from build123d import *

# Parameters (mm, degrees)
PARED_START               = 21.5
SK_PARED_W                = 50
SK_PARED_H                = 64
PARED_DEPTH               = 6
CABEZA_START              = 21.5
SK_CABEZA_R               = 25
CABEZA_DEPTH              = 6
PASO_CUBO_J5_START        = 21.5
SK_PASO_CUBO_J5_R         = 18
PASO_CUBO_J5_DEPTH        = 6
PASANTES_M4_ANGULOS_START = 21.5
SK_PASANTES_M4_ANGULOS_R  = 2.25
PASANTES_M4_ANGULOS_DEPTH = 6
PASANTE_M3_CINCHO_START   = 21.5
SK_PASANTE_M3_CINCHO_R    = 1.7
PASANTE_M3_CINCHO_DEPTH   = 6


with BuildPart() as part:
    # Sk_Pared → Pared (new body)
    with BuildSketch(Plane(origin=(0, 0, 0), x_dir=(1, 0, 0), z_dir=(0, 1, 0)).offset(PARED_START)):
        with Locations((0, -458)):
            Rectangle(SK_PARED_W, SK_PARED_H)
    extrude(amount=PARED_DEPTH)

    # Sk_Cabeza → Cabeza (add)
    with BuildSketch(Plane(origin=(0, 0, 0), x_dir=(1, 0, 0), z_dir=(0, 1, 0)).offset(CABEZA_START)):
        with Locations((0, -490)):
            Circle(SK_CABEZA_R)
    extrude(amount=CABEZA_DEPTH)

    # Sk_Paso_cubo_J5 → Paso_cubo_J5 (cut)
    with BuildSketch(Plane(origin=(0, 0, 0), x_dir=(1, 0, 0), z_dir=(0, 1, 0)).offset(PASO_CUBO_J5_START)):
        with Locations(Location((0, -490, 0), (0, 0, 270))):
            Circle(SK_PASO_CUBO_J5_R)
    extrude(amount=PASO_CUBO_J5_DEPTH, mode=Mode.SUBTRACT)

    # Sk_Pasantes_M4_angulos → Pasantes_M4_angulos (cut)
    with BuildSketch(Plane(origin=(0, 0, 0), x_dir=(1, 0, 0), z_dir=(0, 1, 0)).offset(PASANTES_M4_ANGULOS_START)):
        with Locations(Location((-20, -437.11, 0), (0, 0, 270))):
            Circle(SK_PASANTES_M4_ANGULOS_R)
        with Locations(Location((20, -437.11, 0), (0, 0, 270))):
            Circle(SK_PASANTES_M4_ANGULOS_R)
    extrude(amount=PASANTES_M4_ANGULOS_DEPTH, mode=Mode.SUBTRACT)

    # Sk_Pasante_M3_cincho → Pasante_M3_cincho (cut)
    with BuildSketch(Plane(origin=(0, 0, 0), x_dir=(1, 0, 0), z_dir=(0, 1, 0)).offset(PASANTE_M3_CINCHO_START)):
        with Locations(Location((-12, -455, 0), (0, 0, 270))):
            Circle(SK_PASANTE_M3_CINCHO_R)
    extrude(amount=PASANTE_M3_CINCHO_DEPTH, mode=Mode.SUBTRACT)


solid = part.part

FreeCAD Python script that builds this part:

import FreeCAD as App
import Part
import Sketcher

doc = App.newDocument("Part")
params = doc.addObject("Spreadsheet::Sheet", "Params")
for row, (alias, value) in enumerate([
    ("sketch1_width", "50 mm"),
    ("sketch1_height", "64 mm"),
    ("pad1_length", "6 mm"),
    ("sketch2_diameter", "50 mm"),
    ("pad2_length", "6 mm"),
    ("sketch3_diameter", "36 mm"),
    ("pocket1_length", "6 mm"),
    ("sketch4_diameter", "4.5 mm"),
    ("pocket2_length", "6 mm"),
    ("sketch5_diameter", "3.4 mm"),
    ("pocket3_length", "6 mm"),
], start=1):
    params.set(f"A{row}", alias)
    params.set(f"B{row}", "=" + value)
    params.setAlias(f"B{row}", alias)

body = doc.addObject("PartDesign::Body", "Body")

# Sketch on XZ plane
sketch1 = body.newObject("Sketcher::SketchObject", "Sketch")
sketch1.AttachmentSupport = (doc.getObject("XZ_Plane"), [""])
sketch1.MapMode = "FlatFace"
sketch1.AttachmentOffset = App.Placement(App.Vector(0, 0, -21.5), App.Rotation())
sketch1.addGeometry([
    Part.LineSegment(App.Vector(-25, 426, 0), App.Vector(-25, 490, 0)),
    Part.LineSegment(App.Vector(-25, 490, 0), App.Vector(25, 490, 0)),
    Part.LineSegment(App.Vector(25, 490, 0), App.Vector(25, 426, 0)),
    Part.LineSegment(App.Vector(25, 426, 0), App.Vector(-25, 426, 0)),
], False)
sketch1.addConstraint([
    Sketcher.Constraint("Coincident", 0, 2, 1, 1),
    Sketcher.Constraint("Coincident", 1, 2, 2, 1),
    Sketcher.Constraint("Coincident", 2, 2, 3, 1),
    Sketcher.Constraint("Coincident", 3, 2, 0, 1),
    Sketcher.Constraint("Vertical", 0),
    Sketcher.Constraint("Horizontal", 1),
    Sketcher.Constraint("Vertical", 2),
    Sketcher.Constraint("Horizontal", 3),
    Sketcher.Constraint("DistanceX", 1, 1, 1, 2, 50.0),
    Sketcher.Constraint("DistanceY", 0, 1, 0, 2, 64.0),
    Sketcher.Constraint("DistanceX", 0, 2, -1, 1, 25.0),
    Sketcher.Constraint("DistanceY", -1, 1, 0, 2, 490.0),
])
sketch1.setExpression("Constraints[8]", "Params.sketch1_width")
sketch1.setExpression("Constraints[9]", "Params.sketch1_height")
pad1 = body.newObject("PartDesign::Pad", "Pad")
pad1.Profile = sketch1
pad1.setExpression("Length", "Params.pad1_length")
pad1.Reversed = True

# Sketch on XZ plane
sketch2 = body.newObject("Sketcher::SketchObject", "Sketch001")
sketch2.AttachmentSupport = (doc.getObject("XZ_Plane"), [""])
sketch2.MapMode = "FlatFace"
sketch2.AttachmentOffset = App.Placement(App.Vector(0, 0, -21.5), App.Rotation())
sketch2.addGeometry(Part.Circle(App.Vector(0, 490, 0), App.Vector(0, 0, 1), 25), False)
sketch2.addConstraint([
    Sketcher.Constraint("PointOnObject", 0, 3, -2),
    Sketcher.Constraint("Diameter", 0, 50.0),
    Sketcher.Constraint("DistanceY", -1, 1, 0, 3, 490.0),
])
sketch2.setExpression("Constraints[1]", "Params.sketch2_diameter")
pad2 = body.newObject("PartDesign::Pad", "Pad001")
pad2.Profile = sketch2
pad2.setExpression("Length", "Params.pad2_length")
pad2.Reversed = True

# Sketch on XZ plane
sketch3 = body.newObject("Sketcher::SketchObject", "Sketch002")
sketch3.AttachmentSupport = (doc.getObject("XZ_Plane"), [""])
sketch3.MapMode = "FlatFace"
sketch3.AttachmentOffset = App.Placement(App.Vector(0, 0, -21.5), App.Rotation())
sketch3.addGeometry(Part.Circle(App.Vector(0, 490, 0), App.Vector(0, 0, 1), 18), False)
sketch3.addConstraint([
    Sketcher.Constraint("PointOnObject", 0, 3, -2),
    Sketcher.Constraint("Diameter", 0, 36.0),
    Sketcher.Constraint("DistanceY", -1, 1, 0, 3, 490.0),
])
sketch3.setExpression("Constraints[1]", "Params.sketch3_diameter")
pocket1 = body.newObject("PartDesign::Pocket", "Pocket")
pocket1.Profile = sketch3
pocket1.setExpression("Length", "Params.pocket1_length")

# Sketch on XZ plane
sketch4 = body.newObject("Sketcher::SketchObject", "Sketch003")
sketch4.AttachmentSupport = (doc.getObject("XZ_Plane"), [""])
sketch4.MapMode = "FlatFace"
sketch4.AttachmentOffset = App.Placement(App.Vector(0, 0, -21.5), App.Rotation())
sketch4.addGeometry([
    Part.Circle(App.Vector(-20, 437.1, 0), App.Vector(0, 0, 1), 2.2),
    Part.Circle(App.Vector(20, 437.1, 0), App.Vector(0, 0, 1), 2.2),
], False)
sketch4.addConstraint([
    Sketcher.Constraint("Equal", 0, 1),
    Sketcher.Constraint("Symmetric", 0, 3, 1, 3, -2),
    Sketcher.Constraint("Diameter", 0, 4.5),
    Sketcher.Constraint("DistanceX", 0, 3, -1, 1, 20.0),
    Sketcher.Constraint("DistanceY", -1, 1, 0, 3, 437.11),
])
sketch4.setExpression("Constraints[2]", "Params.sketch4_diameter")
pocket2 = body.newObject("PartDesign::Pocket", "Pocket001")
pocket2.Profile = sketch4
pocket2.setExpression("Length", "Params.pocket2_length")

# Sketch on XZ plane
sketch5 = body.newObject("Sketcher::SketchObject", "Sketch004")
sketch5.AttachmentSupport = (doc.getObject("XZ_Plane"), [""])
sketch5.MapMode = "FlatFace"
sketch5.AttachmentOffset = App.Placement(App.Vector(0, 0, -21.5), App.Rotation())
sketch5.addGeometry(Part.Circle(App.Vector(-12, 455, 0), App.Vector(0, 0, 1), 1.7), False)
sketch5.addConstraint([
    Sketcher.Constraint("Diameter", 0, 3.4),
    Sketcher.Constraint("DistanceX", 0, 3, -1, 1, 12.0),
    Sketcher.Constraint("DistanceY", -1, 1, 0, 3, 455.0),
])
sketch5.setExpression("Constraints[0]", "Params.sketch5_diameter")
pocket3 = body.newObject("PartDesign::Pocket", "Pocket002")
pocket3.Profile = sketch5
pocket3.setExpression("Length", "Params.pocket3_length")

doc.recompute()
